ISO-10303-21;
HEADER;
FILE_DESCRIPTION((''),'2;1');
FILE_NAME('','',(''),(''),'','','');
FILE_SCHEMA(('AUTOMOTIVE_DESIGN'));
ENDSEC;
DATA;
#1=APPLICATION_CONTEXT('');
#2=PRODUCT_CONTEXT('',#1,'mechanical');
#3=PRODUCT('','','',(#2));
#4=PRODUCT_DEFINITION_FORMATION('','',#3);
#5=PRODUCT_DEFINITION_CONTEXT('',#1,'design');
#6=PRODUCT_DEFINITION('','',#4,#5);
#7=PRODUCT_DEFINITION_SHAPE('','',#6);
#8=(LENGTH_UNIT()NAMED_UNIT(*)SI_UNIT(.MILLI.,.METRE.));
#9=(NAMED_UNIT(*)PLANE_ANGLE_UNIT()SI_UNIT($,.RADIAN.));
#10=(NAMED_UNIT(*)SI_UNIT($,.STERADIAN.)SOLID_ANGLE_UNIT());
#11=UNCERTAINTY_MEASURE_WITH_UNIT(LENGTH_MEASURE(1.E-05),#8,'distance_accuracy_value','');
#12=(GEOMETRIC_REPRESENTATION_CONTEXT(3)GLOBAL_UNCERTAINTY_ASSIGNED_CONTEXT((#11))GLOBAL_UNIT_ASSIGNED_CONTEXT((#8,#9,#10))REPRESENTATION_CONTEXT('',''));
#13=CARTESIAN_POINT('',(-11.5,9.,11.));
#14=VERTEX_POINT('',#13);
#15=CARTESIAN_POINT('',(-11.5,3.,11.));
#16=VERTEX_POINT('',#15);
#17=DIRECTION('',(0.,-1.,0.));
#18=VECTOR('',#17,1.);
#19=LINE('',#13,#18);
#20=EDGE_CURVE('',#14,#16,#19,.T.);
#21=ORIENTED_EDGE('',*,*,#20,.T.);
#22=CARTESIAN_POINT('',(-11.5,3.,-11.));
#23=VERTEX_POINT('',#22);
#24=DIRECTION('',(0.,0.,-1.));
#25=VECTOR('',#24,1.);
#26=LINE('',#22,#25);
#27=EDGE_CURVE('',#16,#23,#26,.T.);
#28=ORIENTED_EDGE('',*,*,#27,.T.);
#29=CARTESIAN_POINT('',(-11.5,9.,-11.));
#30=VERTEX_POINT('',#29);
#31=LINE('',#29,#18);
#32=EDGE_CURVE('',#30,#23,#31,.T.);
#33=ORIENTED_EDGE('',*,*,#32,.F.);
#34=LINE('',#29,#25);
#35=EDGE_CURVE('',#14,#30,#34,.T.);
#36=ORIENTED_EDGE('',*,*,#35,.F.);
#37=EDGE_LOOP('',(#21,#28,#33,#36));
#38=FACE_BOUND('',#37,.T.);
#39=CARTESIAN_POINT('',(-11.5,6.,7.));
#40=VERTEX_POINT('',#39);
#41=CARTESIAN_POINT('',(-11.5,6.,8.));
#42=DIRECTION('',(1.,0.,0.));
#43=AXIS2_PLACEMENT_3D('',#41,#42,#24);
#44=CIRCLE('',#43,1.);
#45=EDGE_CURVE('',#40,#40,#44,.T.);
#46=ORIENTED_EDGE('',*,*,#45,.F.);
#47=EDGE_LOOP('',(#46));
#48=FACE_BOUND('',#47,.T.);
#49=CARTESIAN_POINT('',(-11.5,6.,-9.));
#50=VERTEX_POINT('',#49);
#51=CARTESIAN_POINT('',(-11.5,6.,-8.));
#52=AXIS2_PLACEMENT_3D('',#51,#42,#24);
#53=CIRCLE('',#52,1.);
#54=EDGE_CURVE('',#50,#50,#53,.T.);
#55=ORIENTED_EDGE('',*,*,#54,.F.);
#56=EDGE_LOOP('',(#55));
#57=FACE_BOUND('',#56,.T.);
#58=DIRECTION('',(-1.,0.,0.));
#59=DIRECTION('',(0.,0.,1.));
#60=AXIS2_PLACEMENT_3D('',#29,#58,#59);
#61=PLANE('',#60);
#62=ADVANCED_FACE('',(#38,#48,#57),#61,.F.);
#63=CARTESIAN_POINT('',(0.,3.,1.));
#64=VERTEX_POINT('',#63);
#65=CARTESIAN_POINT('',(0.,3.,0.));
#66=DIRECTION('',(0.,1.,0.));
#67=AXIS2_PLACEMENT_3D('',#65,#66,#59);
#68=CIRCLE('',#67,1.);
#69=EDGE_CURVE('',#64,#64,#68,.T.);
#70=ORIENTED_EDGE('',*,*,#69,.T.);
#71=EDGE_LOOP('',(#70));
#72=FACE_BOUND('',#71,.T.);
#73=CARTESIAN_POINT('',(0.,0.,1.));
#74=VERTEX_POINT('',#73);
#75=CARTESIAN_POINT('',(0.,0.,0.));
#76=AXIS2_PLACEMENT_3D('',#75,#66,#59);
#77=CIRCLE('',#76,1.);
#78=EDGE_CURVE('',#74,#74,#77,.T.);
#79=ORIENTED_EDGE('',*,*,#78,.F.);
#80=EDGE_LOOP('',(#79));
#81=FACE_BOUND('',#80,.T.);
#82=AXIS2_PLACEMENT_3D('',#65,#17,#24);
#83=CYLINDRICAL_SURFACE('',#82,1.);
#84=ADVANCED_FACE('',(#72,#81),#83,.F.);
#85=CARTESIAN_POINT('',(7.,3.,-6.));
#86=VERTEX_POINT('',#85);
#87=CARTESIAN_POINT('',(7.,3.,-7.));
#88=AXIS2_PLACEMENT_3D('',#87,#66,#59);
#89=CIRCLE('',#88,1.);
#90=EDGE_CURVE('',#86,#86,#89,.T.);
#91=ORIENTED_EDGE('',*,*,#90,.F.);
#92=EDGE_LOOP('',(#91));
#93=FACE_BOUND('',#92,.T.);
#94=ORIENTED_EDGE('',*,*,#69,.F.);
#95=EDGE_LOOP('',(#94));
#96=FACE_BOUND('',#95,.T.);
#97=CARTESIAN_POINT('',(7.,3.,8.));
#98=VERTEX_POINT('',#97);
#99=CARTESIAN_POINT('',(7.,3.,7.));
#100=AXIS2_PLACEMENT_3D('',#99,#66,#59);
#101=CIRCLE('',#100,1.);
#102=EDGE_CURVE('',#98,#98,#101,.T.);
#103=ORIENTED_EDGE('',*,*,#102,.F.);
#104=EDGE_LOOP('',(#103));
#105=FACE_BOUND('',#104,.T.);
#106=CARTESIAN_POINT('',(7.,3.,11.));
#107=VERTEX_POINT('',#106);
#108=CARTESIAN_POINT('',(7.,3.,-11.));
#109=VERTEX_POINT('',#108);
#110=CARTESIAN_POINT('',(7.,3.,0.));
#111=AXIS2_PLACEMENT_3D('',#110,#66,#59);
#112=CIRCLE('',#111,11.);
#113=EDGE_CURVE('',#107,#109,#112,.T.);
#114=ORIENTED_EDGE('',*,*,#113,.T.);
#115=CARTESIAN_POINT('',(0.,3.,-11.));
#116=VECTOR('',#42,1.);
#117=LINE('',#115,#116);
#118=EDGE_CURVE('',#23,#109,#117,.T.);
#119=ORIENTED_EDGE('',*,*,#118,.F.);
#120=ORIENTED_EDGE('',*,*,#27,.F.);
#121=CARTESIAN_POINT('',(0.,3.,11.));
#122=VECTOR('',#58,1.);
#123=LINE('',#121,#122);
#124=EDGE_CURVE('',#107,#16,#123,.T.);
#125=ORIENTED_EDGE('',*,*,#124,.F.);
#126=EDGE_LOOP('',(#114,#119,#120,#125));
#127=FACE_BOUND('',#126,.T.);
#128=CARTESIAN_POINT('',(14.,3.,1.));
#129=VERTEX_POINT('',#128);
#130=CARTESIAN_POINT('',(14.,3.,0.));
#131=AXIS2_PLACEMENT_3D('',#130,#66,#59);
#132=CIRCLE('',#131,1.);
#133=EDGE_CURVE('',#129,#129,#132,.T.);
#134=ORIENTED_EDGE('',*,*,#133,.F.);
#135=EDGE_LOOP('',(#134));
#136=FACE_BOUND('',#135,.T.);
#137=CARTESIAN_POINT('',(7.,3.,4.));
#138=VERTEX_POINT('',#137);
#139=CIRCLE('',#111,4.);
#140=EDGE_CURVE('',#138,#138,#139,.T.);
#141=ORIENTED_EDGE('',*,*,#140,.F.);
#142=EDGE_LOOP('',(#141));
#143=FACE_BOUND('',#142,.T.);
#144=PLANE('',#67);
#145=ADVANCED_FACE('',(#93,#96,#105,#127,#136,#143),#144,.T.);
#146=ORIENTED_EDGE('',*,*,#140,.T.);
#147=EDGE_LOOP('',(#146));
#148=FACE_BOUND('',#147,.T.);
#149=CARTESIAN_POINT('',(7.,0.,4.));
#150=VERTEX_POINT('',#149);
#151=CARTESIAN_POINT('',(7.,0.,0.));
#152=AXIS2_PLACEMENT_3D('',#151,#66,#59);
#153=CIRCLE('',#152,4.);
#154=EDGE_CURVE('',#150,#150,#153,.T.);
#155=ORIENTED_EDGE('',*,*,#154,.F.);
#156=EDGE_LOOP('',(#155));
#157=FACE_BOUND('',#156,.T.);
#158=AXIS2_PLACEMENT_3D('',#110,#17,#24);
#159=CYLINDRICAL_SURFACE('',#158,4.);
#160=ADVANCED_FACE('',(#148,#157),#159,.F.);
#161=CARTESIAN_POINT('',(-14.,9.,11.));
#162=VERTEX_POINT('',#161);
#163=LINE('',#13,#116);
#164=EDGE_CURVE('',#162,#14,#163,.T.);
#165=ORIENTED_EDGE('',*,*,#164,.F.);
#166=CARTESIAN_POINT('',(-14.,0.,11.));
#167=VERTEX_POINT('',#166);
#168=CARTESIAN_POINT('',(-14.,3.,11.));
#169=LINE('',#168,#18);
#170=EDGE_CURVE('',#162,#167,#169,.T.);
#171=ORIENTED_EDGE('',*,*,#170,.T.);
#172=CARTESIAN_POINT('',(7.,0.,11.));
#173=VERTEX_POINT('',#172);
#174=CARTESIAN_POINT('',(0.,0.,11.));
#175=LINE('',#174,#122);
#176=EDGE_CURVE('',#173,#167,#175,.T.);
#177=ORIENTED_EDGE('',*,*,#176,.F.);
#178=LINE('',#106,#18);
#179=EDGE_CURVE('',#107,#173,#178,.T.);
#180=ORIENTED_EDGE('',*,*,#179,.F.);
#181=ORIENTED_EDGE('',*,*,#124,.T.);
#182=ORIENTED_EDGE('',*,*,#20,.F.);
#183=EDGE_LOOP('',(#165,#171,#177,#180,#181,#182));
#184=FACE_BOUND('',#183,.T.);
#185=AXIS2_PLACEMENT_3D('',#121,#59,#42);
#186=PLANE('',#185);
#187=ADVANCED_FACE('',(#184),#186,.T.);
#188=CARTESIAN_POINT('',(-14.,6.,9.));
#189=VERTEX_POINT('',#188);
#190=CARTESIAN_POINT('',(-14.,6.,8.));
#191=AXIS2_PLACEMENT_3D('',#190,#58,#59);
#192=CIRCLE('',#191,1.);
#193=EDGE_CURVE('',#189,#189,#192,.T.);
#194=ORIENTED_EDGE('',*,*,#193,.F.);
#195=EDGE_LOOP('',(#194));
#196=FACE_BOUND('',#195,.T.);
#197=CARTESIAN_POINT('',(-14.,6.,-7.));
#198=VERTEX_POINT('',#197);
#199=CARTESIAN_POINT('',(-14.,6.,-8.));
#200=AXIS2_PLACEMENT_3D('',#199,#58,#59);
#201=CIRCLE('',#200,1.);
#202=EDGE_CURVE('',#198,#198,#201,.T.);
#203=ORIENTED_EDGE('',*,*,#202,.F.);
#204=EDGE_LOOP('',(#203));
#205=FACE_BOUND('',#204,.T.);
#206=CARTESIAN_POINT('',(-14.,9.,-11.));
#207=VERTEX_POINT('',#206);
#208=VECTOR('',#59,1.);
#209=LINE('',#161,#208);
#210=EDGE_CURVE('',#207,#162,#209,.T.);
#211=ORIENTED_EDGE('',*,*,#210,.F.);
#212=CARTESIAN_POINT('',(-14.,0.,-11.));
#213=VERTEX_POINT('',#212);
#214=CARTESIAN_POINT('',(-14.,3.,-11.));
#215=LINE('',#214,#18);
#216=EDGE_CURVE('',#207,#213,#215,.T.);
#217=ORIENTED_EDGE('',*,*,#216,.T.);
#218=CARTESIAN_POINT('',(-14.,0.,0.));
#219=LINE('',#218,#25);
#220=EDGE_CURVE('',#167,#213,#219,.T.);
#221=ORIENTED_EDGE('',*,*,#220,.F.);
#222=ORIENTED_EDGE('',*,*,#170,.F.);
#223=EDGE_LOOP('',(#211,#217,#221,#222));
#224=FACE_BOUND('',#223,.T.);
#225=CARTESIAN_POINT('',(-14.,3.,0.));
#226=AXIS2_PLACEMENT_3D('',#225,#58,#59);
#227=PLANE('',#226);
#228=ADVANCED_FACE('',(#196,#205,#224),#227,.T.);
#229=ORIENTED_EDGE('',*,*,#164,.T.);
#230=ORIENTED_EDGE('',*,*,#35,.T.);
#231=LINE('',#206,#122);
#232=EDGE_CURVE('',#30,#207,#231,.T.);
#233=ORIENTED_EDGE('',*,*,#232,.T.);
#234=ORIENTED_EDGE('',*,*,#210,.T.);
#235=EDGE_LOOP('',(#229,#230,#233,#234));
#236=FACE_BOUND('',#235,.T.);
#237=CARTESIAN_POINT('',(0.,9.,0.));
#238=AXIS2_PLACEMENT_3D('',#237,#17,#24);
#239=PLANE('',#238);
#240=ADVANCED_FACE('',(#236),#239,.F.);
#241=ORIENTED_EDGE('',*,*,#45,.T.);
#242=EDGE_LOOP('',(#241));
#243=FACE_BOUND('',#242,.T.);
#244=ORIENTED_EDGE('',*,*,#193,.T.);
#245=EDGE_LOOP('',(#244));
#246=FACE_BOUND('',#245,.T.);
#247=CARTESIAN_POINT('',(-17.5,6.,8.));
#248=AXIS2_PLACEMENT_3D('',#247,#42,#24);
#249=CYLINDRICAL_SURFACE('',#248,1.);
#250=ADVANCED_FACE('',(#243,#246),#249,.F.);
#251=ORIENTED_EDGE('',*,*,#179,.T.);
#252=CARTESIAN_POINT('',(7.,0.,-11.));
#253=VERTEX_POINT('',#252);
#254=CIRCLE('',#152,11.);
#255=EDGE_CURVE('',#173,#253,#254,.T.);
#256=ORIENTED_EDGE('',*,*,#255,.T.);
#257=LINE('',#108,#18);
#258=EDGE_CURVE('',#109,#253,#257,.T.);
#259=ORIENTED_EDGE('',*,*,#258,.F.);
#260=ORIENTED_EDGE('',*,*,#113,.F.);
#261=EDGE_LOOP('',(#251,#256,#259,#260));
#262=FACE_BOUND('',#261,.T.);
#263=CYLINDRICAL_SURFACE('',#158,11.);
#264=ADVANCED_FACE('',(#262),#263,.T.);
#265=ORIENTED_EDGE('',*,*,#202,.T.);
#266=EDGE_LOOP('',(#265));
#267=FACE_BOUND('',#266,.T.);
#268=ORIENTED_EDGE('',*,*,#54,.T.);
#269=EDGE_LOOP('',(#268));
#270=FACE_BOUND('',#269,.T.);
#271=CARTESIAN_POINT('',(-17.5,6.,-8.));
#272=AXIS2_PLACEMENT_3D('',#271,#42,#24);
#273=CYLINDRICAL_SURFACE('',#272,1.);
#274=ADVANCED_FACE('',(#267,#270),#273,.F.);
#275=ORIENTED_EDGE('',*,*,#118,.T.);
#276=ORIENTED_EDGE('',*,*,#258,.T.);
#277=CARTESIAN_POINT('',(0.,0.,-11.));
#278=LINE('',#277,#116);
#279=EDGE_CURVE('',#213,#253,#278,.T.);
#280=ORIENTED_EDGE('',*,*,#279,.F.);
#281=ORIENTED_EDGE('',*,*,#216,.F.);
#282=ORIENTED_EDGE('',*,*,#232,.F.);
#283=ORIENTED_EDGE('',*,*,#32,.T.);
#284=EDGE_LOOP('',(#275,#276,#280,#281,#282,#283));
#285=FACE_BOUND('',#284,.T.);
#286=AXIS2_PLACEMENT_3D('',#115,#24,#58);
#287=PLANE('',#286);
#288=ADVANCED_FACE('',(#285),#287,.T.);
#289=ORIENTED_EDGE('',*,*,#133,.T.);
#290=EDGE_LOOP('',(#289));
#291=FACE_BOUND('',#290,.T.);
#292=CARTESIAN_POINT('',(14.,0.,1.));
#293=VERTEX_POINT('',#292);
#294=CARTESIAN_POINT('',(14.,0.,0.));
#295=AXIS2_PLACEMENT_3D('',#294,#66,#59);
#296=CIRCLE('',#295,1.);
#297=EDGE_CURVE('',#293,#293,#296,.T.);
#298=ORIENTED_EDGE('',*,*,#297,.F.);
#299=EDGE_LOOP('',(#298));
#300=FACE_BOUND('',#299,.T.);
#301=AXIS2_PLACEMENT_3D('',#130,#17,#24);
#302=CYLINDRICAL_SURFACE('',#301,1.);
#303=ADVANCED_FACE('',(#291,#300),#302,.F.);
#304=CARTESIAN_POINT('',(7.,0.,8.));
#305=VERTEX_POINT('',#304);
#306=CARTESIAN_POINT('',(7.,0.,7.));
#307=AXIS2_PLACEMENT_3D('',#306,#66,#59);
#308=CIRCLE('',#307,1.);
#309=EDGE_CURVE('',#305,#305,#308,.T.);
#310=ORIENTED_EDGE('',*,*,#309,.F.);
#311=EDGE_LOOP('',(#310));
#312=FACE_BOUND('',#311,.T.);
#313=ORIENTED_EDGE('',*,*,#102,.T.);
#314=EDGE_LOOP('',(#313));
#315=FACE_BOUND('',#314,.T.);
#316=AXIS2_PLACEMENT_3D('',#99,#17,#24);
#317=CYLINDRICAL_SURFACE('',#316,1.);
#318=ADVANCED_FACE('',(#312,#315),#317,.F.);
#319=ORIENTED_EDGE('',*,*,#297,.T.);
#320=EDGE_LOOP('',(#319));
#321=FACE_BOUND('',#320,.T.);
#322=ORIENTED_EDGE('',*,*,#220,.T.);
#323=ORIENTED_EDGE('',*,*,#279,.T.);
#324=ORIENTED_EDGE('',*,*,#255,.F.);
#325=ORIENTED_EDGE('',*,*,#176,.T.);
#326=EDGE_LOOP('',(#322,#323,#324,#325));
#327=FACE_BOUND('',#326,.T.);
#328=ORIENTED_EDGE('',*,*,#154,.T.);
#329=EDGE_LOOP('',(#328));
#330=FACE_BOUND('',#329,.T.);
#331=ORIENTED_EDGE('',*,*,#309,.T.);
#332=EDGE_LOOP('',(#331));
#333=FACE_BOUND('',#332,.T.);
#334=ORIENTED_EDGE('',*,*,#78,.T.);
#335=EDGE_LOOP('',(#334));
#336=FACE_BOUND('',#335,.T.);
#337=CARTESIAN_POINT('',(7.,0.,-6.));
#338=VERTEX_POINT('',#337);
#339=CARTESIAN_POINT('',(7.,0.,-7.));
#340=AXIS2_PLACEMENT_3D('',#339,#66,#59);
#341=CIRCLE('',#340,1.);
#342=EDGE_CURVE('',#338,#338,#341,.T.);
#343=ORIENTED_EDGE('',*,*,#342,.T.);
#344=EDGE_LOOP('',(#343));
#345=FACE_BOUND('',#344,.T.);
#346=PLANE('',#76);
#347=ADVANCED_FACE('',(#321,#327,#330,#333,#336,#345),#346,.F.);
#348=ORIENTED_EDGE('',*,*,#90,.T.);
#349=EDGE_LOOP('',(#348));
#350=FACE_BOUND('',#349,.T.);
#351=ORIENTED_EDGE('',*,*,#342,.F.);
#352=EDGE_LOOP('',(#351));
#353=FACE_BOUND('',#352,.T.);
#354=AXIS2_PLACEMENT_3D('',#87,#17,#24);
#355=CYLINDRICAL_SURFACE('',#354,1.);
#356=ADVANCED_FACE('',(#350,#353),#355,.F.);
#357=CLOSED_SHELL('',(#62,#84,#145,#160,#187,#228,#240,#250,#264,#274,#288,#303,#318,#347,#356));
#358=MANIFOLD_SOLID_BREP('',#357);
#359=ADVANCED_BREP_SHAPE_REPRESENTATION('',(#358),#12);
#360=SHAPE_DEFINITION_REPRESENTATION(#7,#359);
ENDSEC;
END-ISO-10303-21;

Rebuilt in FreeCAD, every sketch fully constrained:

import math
import FreeCAD as App
import Part
import Sketcher

V = App.Vector
Q = App.Units.Quantity

doc = App.newDocument("Part")
body = doc.addObject("PartDesign::Body", "Body")

# Sketch on XZ plane
sketch1 = body.newObject("Sketcher::SketchObject", "Sketch")
sketch1.AttachmentSupport = (doc.getObject("XZ_Plane"), [""])
sketch1.MapMode = "FlatFace"
sketch1.addGeometry([
    Part.LineSegment(V(-14, -11, 0), V(-14, 11, 0)),  # 0
    Part.LineSegment(V(-14, 11, 0), V(7, 11, 0)),  # 1
    Part.ArcOfCircle(Part.Circle(V(7, 0, 0), V(0, 0, 1), 11), math.radians(-90), math.radians(90)),  # 2
    Part.LineSegment(V(7, -11, 0), V(-14, -11, 0)),  # 3
    Part.Circle(V(7, 7, 0), V(0, 0, 1), 1),  # 4
    Part.Circle(V(14, 0, 0), V(0, 0, 1), 1),  # 5
    Part.Circle(V(7, 0, 0), V(0, 0, 1), 4),  # 6
    Part.Circle(V(0, 0, 0), V(0, 0, 1), 1),  # 7
    Part.Circle(V(7, -7, 0), V(0, 0, 1), 1),  # 8
], False)
sketch1.addConstraint([
    Sketcher.Constraint("Coincident", 0, 2, 1, 1),
    Sketcher.Constraint("Tangent", 1, 2, 2, 2),
    Sketcher.Constraint("Tangent", 2, 1, 3, 1),
    Sketcher.Constraint("Coincident", 3, 2, 0, 1),
    Sketcher.Constraint("Vertical", 0),
    Sketcher.Constraint("Horizontal", 1),
    Sketcher.Constraint("Horizontal", 3),
    Sketcher.Constraint("Coincident", 7, 3, -1, 1),
    Sketcher.Constraint("Coincident", 6, 3, 2, 3),
    Sketcher.Constraint("Equal", 4, 5),
    Sketcher.Constraint("Equal", 5, 7),
    Sketcher.Constraint("Equal", 7, 8),
    Sketcher.Constraint("Symmetric", 4, 3, 8, 3, -1),
    Sketcher.Constraint("PointOnObject", 2, 3, -1),
    Sketcher.Constraint("PointOnObject", 5, 3, -1),
    Sketcher.Constraint("Vertical", 2, 3, 4, 3),
    Sketcher.Constraint("Diameter", 4, Q("2 mm")),
    Sketcher.Constraint("Diameter", 6, Q("8 mm")),
    Sketcher.Constraint("Radius", 2, Q("11 mm")),
    Sketcher.Constraint("DistanceX", 1, 1, 1, 2, Q("21 mm")),
    Sketcher.Constraint("DistanceX", -1, 1, 2, 3, Q("7 mm")),
    Sketcher.Constraint("DistanceY", -1, 1, 4, 3, Q("7 mm")),
    Sketcher.Constraint("DistanceX", -1, 1, 5, 3, Q("14 mm")),
])
pad1 = body.newObject("PartDesign::Pad", "Pad")
pad1.Profile = sketch1
pad1.Length = 3
pad1.Reversed = True

# Sketch on XZ plane
sketch2 = body.newObject("Sketcher::SketchObject", "Sketch001")
sketch2.AttachmentSupport = (doc.getObject("XZ_Plane"), [""])
sketch2.MapMode = "FlatFace"
sketch2.AttachmentOffset = App.Placement(V(0, 0, -3), App.Rotation())
sketch2.addGeometry([
    Part.LineSegment(V(-14, -11, 0), V(-14, 11, 0)),
    Part.LineSegment(V(-14, 11, 0), V(-11.5, 11, 0)),
    Part.LineSegment(V(-11.5, 11, 0), V(-11.5, -11, 0)),
    Part.LineSegment(V(-11.5, -11, 0), V(-14, -11, 0)),
], False)
sketch2.addConstraint([
    Sketcher.Constraint("Coincident", 0, 2, 1, 1),
    Sketcher.Constraint("Coincident", 1, 2, 2, 1),
    Sketcher.Constraint("Coincident", 2, 2, 3, 1),
    Sketcher.Constraint("Coincident", 3, 2, 0, 1),
    Sketcher.Constraint("Vertical", 0),
    Sketcher.Constraint("Horizontal", 1),
    Sketcher.Constraint("Vertical", 2),
    Sketcher.Constraint("Horizontal", 3),
    Sketcher.Constraint("DistanceY", 0, 1, 0, 2, Q("22 mm")),
    Sketcher.Constraint("DistanceX", 1, 1, 1, 2, Q("2.5 mm")),
    Sketcher.Constraint("DistanceX", 0, 2, -1, 1, Q("14 mm")),
    Sketcher.Constraint("DistanceY", -1, 1, 0, 2, Q("11 mm")),
])
pad2 = body.newObject("PartDesign::Pad", "Pad001")
pad2.Profile = sketch2
pad2.Length = 6
pad2.Reversed = True

# Sketch on YZ plane
sketch3 = body.newObject("Sketcher::SketchObject", "Sketch002")
sketch3.AttachmentSupport = (doc.getObject("YZ_Plane"), [""])
sketch3.MapMode = "FlatFace"
sketch3.AttachmentOffset = App.Placement(V(0, 0, -11.5), App.Rotation())
sketch3.addGeometry([
    Part.Circle(V(6, -8, 0), V(0, 0, 1), 1),
    Part.Circle(V(6, 8, 0), V(0, 0, 1), 1),
], False)
sketch3.addConstraint([
    Sketcher.Constraint("Equal", 0, 1),
    Sketcher.Constraint("Symmetric", 0, 3, 1, 3, -1),
    Sketcher.Constraint("Diameter", 0, Q("2 mm")),
    Sketcher.Constraint("DistanceX", -1, 1, 0, 3, Q("6 mm")),
    Sketcher.Constraint("DistanceY", 0, 3, -1, 1, Q("8 mm")),
])
pocket1 = body.newObject("PartDesign::Pocket", "Pocket")
pocket1.Profile = sketch3
pocket1.Length = 6

doc.recompute()
